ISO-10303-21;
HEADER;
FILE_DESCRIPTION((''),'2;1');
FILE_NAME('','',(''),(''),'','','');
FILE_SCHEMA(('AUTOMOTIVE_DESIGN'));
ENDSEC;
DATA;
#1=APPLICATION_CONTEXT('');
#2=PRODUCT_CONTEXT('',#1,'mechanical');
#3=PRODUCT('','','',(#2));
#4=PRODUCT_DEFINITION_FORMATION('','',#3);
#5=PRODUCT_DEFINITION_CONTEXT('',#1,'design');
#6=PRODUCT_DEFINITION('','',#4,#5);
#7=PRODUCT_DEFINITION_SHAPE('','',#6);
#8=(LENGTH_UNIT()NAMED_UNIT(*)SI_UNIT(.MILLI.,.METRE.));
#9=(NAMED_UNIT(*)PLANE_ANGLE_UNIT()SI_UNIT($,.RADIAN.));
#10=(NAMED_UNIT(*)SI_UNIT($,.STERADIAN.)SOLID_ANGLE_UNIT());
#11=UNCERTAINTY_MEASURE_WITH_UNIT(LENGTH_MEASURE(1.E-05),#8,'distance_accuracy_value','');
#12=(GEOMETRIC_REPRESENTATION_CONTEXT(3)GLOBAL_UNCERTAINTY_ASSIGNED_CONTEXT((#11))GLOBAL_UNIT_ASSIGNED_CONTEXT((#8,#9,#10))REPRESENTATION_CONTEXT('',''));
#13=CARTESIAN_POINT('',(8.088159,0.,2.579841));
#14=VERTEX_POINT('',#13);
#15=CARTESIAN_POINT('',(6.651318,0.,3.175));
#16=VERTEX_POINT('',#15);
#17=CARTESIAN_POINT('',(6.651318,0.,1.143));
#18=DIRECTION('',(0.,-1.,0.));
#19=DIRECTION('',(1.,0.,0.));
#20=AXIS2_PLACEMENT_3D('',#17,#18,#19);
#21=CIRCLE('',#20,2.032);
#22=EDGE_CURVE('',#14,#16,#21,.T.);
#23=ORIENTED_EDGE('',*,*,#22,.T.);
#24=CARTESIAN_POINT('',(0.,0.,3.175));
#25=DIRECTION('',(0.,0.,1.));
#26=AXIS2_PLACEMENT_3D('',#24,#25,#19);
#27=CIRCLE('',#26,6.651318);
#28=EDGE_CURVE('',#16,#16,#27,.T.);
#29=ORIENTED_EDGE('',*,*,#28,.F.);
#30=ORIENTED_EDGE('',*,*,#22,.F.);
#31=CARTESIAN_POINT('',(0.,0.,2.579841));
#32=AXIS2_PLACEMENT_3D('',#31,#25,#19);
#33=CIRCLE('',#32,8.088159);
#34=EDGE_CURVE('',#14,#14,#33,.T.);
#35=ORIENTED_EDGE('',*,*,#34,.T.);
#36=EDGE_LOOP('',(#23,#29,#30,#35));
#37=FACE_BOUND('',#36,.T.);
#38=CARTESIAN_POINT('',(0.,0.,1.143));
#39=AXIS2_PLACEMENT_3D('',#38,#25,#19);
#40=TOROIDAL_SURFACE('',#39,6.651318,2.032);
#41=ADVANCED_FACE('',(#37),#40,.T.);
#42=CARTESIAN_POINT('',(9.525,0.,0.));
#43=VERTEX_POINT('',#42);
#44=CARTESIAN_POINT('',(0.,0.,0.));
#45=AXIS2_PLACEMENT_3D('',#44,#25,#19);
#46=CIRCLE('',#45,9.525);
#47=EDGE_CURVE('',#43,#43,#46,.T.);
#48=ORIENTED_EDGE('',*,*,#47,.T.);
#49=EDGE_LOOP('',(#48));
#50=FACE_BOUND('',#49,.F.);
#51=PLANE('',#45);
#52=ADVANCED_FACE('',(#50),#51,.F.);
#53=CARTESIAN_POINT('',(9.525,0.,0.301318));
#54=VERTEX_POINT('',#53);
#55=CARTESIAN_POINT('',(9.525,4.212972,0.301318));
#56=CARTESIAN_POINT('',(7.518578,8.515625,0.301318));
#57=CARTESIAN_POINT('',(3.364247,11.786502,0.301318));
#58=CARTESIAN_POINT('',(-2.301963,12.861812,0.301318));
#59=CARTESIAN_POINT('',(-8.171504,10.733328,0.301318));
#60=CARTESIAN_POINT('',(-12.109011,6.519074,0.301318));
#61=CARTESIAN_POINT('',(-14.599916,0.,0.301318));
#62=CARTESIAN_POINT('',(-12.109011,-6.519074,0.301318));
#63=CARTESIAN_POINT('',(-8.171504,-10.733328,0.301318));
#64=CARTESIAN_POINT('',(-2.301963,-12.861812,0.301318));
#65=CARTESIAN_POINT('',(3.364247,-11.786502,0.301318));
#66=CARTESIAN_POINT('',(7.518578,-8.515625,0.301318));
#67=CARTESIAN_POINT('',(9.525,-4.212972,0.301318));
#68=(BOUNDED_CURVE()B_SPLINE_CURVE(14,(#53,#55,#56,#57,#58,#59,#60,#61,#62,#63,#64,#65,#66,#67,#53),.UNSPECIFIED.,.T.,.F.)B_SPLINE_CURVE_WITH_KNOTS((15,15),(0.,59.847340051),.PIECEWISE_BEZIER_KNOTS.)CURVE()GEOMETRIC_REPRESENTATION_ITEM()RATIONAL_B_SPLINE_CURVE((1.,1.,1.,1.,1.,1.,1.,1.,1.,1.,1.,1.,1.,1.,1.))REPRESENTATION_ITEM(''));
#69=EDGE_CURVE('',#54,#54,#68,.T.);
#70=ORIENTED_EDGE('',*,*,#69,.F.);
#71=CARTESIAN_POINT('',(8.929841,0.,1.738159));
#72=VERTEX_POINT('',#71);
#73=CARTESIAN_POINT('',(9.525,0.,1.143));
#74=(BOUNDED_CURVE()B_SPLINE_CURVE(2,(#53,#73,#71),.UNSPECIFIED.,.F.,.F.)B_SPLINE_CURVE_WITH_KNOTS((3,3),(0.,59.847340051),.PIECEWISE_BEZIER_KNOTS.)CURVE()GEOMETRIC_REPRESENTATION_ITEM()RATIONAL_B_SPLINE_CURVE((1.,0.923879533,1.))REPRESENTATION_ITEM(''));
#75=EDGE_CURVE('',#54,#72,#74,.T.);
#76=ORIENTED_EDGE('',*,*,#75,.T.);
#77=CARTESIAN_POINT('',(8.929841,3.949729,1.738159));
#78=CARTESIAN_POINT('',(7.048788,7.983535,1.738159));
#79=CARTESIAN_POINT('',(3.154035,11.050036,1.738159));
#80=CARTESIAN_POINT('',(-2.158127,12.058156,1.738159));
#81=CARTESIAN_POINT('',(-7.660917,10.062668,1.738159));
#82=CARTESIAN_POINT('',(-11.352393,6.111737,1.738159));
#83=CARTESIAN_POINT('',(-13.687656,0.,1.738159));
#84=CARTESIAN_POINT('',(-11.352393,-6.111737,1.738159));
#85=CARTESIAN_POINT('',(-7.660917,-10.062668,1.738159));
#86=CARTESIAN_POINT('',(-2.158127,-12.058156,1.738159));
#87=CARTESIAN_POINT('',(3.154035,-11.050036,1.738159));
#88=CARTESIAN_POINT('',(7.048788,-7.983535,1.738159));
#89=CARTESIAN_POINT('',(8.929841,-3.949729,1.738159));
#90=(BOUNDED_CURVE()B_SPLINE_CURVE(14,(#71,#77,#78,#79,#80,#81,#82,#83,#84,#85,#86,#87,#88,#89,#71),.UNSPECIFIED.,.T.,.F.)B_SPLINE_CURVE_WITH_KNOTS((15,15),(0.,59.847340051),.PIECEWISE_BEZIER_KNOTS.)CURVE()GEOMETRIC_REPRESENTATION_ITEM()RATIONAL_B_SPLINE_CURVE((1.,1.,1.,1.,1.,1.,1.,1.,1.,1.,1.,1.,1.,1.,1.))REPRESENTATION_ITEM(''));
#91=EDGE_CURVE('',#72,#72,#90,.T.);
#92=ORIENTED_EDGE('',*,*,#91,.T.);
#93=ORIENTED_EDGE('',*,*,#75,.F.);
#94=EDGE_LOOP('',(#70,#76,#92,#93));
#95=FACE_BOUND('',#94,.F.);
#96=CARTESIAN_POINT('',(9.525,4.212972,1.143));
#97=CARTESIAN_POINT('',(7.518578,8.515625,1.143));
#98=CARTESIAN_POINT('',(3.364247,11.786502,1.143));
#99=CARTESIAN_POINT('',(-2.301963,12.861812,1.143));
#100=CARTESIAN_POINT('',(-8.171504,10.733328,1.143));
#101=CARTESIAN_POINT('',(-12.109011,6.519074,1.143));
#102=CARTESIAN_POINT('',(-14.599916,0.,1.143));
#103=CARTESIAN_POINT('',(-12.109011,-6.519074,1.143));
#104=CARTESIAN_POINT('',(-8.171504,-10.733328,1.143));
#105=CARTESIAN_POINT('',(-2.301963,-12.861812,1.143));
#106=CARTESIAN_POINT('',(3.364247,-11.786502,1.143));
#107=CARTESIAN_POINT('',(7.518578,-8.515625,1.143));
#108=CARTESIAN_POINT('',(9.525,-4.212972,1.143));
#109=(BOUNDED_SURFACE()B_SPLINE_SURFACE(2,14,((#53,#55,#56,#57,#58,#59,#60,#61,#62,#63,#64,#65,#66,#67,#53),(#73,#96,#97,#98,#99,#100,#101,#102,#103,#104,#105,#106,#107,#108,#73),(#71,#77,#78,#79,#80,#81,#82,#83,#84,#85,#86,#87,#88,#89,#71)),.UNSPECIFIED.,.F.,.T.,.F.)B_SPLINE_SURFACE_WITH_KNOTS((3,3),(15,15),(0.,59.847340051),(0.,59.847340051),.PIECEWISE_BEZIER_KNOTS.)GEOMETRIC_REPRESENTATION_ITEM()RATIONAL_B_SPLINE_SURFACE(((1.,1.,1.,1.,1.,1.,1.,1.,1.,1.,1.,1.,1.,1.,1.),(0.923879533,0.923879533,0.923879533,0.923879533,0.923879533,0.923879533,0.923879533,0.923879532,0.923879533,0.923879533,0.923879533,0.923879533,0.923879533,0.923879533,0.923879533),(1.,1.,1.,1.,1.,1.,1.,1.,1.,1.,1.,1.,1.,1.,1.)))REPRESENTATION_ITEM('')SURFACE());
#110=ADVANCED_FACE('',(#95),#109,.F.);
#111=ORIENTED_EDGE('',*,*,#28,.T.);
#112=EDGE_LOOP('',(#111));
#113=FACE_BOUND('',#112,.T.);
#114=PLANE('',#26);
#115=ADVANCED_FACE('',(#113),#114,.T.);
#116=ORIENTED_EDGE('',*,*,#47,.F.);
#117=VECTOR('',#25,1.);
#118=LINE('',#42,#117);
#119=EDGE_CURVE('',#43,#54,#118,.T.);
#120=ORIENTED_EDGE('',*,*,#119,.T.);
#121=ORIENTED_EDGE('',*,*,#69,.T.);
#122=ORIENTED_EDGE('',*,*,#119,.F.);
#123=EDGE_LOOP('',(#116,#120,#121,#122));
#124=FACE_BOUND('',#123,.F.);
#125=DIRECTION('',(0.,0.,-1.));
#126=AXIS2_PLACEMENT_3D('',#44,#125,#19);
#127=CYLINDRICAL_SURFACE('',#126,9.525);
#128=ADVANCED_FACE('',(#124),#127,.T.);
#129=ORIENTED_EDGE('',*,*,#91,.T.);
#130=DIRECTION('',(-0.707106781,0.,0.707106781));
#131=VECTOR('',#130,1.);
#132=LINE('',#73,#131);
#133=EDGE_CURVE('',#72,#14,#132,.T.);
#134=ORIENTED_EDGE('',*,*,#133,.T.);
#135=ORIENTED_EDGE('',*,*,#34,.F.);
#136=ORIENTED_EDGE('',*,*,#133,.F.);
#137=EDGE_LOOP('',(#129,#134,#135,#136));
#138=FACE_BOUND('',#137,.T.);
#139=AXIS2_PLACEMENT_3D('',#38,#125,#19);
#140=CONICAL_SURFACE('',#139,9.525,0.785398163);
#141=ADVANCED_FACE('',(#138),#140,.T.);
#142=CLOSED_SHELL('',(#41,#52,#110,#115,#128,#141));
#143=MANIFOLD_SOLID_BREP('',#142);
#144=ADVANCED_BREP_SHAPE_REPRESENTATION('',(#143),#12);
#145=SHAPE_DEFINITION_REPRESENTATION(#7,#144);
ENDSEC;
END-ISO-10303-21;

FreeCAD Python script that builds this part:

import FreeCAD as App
import Part
import Sketcher

V = App.Vector
Q = App.Units.Quantity


def edges_at(feature, points):
    """Names of the edges that pass closest to the given points."""
    edges = feature.Shape.Edges
    near = lambda p: min(range(len(edges)), key=lambda i: edges[i].distToShape(Part.Vertex(*p))[0])
    return sorted({f"Edge{near(p) + 1}" for p in points})

doc = App.newDocument("Part")
body = doc.addObject("PartDesign::Body", "Body")

sketch1 = body.newObject("Sketcher::SketchObject", "Sketch")
sketch1.AttachmentSupport = (doc.getObject("XY_Plane"), [""])
sketch1.MapMode = "FlatFace"
sketch1.addGeometry(Part.Circle(V(0, 0, 0), V(0, 0, 1), 10), False)
sketch1.addConstraint(Sketcher.Constraint("Coincident", 0, 3, -1, 1))
sketch1.addConstraint(Sketcher.Constraint("Diameter", 0, Q("0.75 in")))
pad1 = body.newObject("PartDesign::Pad", "Pad")
pad1.Profile = sketch1
pad1.Length = Q("0.125 in")
doc.recompute()

chamfer = body.newObject("PartDesign::Chamfer", "Chamfer")
chamfer.Base = (pad1, edges_at(pad1, [(-9.525, 0, 3.175)]))
chamfer.Size = Q("0.08 in")
doc.recompute()

fillet = body.newObject("PartDesign::Fillet", "Fillet")
fillet.Base = (chamfer, edges_at(chamfer, [(-7.493, 0, 3.175), (-9.525, 0, 1.143)]))
fillet.Radius = Q("0.08 in")

doc.recompute()
